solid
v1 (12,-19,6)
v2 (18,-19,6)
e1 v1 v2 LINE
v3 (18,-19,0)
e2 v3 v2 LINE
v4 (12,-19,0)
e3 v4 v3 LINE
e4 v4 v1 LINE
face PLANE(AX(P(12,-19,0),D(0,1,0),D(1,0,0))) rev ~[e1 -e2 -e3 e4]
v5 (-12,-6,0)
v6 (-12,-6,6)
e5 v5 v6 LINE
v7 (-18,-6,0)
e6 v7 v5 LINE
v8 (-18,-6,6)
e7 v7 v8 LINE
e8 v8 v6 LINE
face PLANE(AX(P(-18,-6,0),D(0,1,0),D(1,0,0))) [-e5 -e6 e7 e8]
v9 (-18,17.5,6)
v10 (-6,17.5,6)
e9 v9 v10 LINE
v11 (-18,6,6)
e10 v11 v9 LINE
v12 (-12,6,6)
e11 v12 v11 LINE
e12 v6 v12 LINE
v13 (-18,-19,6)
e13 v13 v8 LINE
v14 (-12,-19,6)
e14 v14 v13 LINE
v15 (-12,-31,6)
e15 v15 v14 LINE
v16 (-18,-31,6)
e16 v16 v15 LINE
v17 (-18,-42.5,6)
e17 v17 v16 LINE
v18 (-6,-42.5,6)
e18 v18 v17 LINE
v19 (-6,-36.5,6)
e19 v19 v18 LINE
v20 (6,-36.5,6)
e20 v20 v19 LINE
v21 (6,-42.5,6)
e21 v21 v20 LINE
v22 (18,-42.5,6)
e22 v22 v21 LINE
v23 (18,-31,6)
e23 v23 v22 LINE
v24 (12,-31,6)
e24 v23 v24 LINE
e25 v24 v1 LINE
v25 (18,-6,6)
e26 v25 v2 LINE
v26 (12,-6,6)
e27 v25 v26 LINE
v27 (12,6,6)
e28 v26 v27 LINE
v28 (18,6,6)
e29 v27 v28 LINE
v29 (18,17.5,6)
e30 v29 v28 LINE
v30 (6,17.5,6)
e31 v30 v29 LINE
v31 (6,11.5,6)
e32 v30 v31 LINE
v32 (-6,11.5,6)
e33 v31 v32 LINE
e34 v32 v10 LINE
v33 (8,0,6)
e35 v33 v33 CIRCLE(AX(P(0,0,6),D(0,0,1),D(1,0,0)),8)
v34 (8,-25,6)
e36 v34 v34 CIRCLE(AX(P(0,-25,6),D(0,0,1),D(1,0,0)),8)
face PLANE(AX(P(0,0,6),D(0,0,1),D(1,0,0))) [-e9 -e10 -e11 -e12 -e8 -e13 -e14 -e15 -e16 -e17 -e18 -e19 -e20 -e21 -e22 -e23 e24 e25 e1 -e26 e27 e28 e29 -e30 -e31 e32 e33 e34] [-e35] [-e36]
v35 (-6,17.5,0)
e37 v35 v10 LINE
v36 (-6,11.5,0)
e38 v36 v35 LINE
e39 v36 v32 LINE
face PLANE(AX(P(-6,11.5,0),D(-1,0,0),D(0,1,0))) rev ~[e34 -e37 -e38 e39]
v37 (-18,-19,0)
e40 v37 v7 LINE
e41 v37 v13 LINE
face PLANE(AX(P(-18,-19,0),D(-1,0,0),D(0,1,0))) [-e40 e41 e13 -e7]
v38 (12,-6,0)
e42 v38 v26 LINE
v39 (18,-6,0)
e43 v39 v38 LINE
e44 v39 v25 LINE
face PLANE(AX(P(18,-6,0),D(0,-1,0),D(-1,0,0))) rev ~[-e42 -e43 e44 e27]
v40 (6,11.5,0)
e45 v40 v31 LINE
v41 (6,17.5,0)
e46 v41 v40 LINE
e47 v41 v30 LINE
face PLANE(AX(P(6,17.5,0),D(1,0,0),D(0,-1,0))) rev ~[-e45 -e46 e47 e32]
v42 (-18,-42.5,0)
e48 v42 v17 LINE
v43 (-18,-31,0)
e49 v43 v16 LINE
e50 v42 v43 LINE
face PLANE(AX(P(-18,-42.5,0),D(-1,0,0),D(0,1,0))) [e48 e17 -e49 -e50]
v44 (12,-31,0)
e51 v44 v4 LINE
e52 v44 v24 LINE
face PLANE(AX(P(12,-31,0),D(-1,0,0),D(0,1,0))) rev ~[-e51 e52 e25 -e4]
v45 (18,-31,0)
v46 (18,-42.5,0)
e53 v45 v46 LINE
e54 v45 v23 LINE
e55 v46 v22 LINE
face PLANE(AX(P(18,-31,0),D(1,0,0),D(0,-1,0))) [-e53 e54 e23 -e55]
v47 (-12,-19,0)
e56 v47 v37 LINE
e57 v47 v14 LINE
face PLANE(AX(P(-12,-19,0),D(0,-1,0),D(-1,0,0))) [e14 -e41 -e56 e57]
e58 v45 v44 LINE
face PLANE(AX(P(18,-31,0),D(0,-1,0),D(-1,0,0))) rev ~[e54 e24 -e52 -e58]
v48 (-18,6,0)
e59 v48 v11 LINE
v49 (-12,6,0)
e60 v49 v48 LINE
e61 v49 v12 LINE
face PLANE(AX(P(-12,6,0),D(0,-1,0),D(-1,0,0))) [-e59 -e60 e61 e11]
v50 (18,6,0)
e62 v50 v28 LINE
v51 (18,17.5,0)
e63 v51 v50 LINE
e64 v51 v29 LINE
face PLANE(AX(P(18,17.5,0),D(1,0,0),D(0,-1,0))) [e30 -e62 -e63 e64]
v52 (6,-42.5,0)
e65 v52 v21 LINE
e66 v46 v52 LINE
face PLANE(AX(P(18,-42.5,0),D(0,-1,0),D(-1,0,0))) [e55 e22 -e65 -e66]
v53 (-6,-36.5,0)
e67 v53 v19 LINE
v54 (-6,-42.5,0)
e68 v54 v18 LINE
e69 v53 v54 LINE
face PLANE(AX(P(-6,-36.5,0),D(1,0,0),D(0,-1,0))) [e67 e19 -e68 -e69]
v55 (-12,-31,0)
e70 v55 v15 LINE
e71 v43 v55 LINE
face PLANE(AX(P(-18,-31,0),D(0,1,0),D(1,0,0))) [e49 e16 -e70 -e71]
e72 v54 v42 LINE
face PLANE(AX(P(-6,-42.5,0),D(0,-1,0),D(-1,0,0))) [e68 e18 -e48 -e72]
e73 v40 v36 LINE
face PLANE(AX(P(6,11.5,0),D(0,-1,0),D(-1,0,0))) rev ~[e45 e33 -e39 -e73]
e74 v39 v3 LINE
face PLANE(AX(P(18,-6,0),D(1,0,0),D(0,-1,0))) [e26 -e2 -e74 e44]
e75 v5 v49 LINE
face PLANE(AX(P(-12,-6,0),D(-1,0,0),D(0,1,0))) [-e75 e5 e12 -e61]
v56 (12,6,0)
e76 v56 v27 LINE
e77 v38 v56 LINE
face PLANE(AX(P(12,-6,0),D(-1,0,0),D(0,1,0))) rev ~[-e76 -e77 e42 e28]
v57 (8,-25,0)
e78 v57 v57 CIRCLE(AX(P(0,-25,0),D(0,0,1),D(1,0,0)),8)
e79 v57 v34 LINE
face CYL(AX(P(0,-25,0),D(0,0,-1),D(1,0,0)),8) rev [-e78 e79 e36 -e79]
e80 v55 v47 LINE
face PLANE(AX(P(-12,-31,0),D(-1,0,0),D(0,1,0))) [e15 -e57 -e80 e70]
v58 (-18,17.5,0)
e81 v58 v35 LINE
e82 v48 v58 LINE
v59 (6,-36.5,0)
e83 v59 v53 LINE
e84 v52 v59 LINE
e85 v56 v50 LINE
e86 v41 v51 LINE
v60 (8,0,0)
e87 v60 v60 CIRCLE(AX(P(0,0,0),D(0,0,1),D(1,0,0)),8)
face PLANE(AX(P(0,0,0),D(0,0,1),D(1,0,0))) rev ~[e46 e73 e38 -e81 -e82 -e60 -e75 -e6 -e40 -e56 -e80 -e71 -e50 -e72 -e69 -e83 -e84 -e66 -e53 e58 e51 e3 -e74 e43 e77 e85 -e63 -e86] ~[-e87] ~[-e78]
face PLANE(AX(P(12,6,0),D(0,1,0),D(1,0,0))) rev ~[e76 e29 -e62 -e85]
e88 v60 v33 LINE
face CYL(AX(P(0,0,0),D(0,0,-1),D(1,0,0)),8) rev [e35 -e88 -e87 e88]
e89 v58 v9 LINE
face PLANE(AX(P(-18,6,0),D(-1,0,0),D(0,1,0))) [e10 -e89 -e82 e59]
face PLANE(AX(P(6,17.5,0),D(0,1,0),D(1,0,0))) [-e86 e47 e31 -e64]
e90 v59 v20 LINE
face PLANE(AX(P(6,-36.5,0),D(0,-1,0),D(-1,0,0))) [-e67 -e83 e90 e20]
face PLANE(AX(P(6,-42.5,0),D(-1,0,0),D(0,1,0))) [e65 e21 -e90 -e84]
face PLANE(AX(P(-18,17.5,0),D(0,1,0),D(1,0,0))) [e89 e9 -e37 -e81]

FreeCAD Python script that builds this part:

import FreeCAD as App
import Part
import Sketcher

doc = App.newDocument("Part")
params = doc.addObject("Spreadsheet::Sheet", "Params")
for row, (alias, value) in enumerate([
    ("sketch1_diameter", "16 mm"),
    ("sketch1_width", "12 mm"),
    ("sketch1_width2", "6 mm"),
    ("sketch1_height", "11.5 mm"),
    ("pad1_length", "6 mm"),
], start=1):
    params.set(f"A{row}", alias)
    params.set(f"B{row}", "=" + value)
    params.setAlias(f"B{row}", alias)

body = doc.addObject("PartDesign::Body", "Body")

# Sketch on XY plane
sketch1 = body.newObject("Sketcher::SketchObject", "Sketch")
sketch1.AttachmentSupport = (doc.getObject("XY_Plane"), [""])
sketch1.MapMode = "FlatFace"
sketch1.addGeometry(Part.LineSegment(App.Vector(-6, 18, 0), App.Vector(-18, 18, 0)), False)
sketch1.addGeometry(Part.LineSegment(App.Vector(-18, 18, 0), App.Vector(-18, 6, 0)), False)
sketch1.addGeometry(Part.LineSegment(App.Vector(-18, 6, 0), App.Vector(-12, 6, 0)), False)
sketch1.addGeometry(Part.LineSegment(App.Vector(-12, 6, 0), App.Vector(-12, -6, 0)), False)
sketch1.addGeometry(Part.LineSegment(App.Vector(-12, -6, 0), App.Vector(-18, -6, 0)), False)
sketch1.addGeometry(Part.LineSegment(App.Vector(-18, -6, 0), App.Vector(-18, -19, 0)), False)
sketch1.addGeometry(Part.LineSegment(App.Vector(-18, -19, 0), App.Vector(-12, -19, 0)), False)
sketch1.addGeometry(Part.LineSegment(App.Vector(-12, -19, 0), App.Vector(-12, -31, 0)), False)
sketch1.addGeometry(Part.LineSegment(App.Vector(-12, -31, 0), App.Vector(-18, -31, 0)), False)
sketch1.addGeometry(Part.LineSegment(App.Vector(-18, -31, 0), App.Vector(-18, -42, 0)), False)
sketch1.addGeometry(Part.LineSegment(App.Vector(-18, -42, 0), App.Vector(-6, -42, 0)), False)
sketch1.addGeometry(Part.LineSegment(App.Vector(-6, -42, 0), App.Vector(-6, -36, 0)), False)
sketch1.addGeometry(Part.LineSegment(App.Vector(-6, -36, 0), App.Vector(6, -36, 0)), False)
sketch1.addGeometry(Part.LineSegment(App.Vector(6, -36, 0), App.Vector(6, -42, 0)), False)
sketch1.addGeometry(Part.LineSegment(App.Vector(6, -42, 0), App.Vector(18, -42, 0)), False)
sketch1.addGeometry(Part.LineSegment(App.Vector(18, -42, 0), App.Vector(18, -31, 0)), False)
sketch1.addGeometry(Part.LineSegment(App.Vector(18, -31, 0), App.Vector(12, -31, 0)), False)
sketch1.addGeometry(Part.LineSegment(App.Vector(12, -31, 0), App.Vector(12, -19, 0)), False)
sketch1.addGeometry(Part.LineSegment(App.Vector(12, -19, 0), App.Vector(18, -19, 0)), False)
sketch1.addGeometry(Part.LineSegment(App.Vector(18, -19, 0), App.Vector(18, -6, 0)), False)
sketch1.addGeometry(Part.LineSegment(App.Vector(18, -6, 0), App.Vector(12, -6, 0)), False)
sketch1.addGeometry(Part.LineSegment(App.Vector(12, -6, 0), App.Vector(12, 6, 0)), False)
sketch1.addGeometry(Part.LineSegment(App.Vector(12, 6, 0), App.Vector(18, 6, 0)), False)
sketch1.addGeometry(Part.LineSegment(App.Vector(18, 6, 0), App.Vector(18, 18, 0)), False)
sketch1.addGeometry(Part.LineSegment(App.Vector(18, 18, 0), App.Vector(6, 18, 0)), False)
sketch1.addGeometry(Part.LineSegment(App.Vector(6, 18, 0), App.Vector(6, 12, 0)), False)
sketch1.addGeometry(Part.LineSegment(App.Vector(6, 12, 0), App.Vector(-6, 12, 0)), False)
sketch1.addGeometry(Part.LineSegment(App.Vector(-6, 12, 0), App.Vector(-6, 18, 0)), False)
sketch1.addGeometry(Part.Circle(App.Vector(0, -25, 0), App.Vector(0, 0, 1), 8), False)
sketch1.addGeometry(Part.Circle(App.Vector(0, 0, 0), App.Vector(0, 0, 1), 8), False)
sketch1.addConstraint(Sketcher.Constraint("Coincident", 0, 2, 1, 1))
sketch1.addConstraint(Sketcher.Constraint("Coincident", 1, 2, 2, 1))
sketch1.addConstraint(Sketcher.Constraint("Coincident", 2, 2, 3, 1))
sketch1.addConstraint(Sketcher.Constraint("Coincident", 3, 2, 4, 1))
sketch1.addConstraint(Sketcher.Constraint("Coincident", 4, 2, 5, 1))
sketch1.addConstraint(Sketcher.Constraint("Coincident", 5, 2, 6, 1))
sketch1.addConstraint(Sketcher.Constraint("Coincident", 6, 2, 7, 1))
sketch1.addConstraint(Sketcher.Constraint("Coincident", 7, 2, 8, 1))
sketch1.addConstraint(Sketcher.Constraint("Coincident", 8, 2, 9, 1))
sketch1.addConstraint(Sketcher.Constraint("Coincident", 9, 2, 10, 1))
sketch1.addConstraint(Sketcher.Constraint("Coincident", 10, 2, 11, 1))
sketch1.addConstraint(Sketcher.Constraint("Coincident", 11, 2, 12, 1))
sketch1.addConstraint(Sketcher.Constraint("Coincident", 12, 2, 13, 1))
sketch1.addConstraint(Sketcher.Constraint("Coincident", 13, 2, 14, 1))
sketch1.addConstraint(Sketcher.Constraint("Coincident", 14, 2, 15, 1))
sketch1.addConstraint(Sketcher.Constraint("Coincident", 15, 2, 16, 1))
sketch1.addConstraint(Sketcher.Constraint("Coincident", 16, 2, 17, 1))
sketch1.addConstraint(Sketcher.Constraint("Coincident", 17, 2, 18, 1))
sketch1.addConstraint(Sketcher.Constraint("Coincident", 18, 2, 19, 1))
sketch1.addConstraint(Sketcher.Constraint("Coincident", 19, 2, 20, 1))
sketch1.addConstraint(Sketcher.Constraint("Coincident", 20, 2, 21, 1))
sketch1.addConstraint(Sketcher.Constraint("Coincident", 21, 2, 22, 1))
sketch1.addConstraint(Sketcher.Constraint("Coincident", 22, 2, 23, 1))
sketch1.addConstraint(Sketcher.Constraint("Coincident", 23, 2, 24, 1))
sketch1.addConstraint(Sketcher.Constraint("Coincident", 24, 2, 25, 1))
sketch1.addConstraint(Sketcher.Constraint("Coincident", 25, 2, 26, 1))
sketch1.addConstraint(Sketcher.Constraint("Coincident", 26, 2, 27, 1))
sketch1.addConstraint(Sketcher.Constraint("Coincident", 27, 2, 0, 1))
sketch1.addConstraint(Sketcher.Constraint("Horizontal", 0))
sketch1.addConstraint(Sketcher.Constraint("Vertical", 1))
sketch1.addConstraint(Sketcher.Constraint("Horizontal", 2))
sketch1.addConstraint(Sketcher.Constraint("Vertical", 3))
sketch1.addConstraint(Sketcher.Constraint("Horizontal", 4))
sketch1.addConstraint(Sketcher.Constraint("Vertical", 5))
sketch1.addConstraint(Sketcher.Constraint("Horizontal", 6))
sketch1.addConstraint(Sketcher.Constraint("Vertical", 7))
sketch1.addConstraint(Sketcher.Constraint("Horizontal", 8))
sketch1.addConstraint(Sketcher.Constraint("Vertical", 9))
sketch1.addConstraint(Sketcher.Constraint("Horizontal", 10))
sketch1.addConstraint(Sketcher.Constraint("Vertical", 11))
sketch1.addConstraint(Sketcher.Constraint("Horizontal", 12))
sketch1.addConstraint(Sketcher.Constraint("Vertical", 13))
sketch1.addConstraint(Sketcher.Constraint("Horizontal", 14))
sketch1.addConstraint(Sketcher.Constraint("Vertical", 15))
sketch1.addConstraint(Sketcher.Constraint("Horizontal", 16))
sketch1.addConstraint(Sketcher.Constraint("Vertical", 17))
sketch1.addConstraint(Sketcher.Constraint("Horizontal", 18))
sketch1.addConstraint(Sketcher.Constraint("Vertical", 19))
sketch1.addConstraint(Sketcher.Constraint("Horizontal", 20))
sketch1.addConstraint(Sketcher.Constraint("Vertical", 21))
sketch1.addConstraint(Sketcher.Constraint("Horizontal", 22))
sketch1.addConstraint(Sketcher.Constraint("Vertical", 23))
sketch1.addConstraint(Sketcher.Constraint("Horizontal", 24))
sketch1.addConstraint(Sketcher.Constraint("Vertical", 25))
sketch1.addConstraint(Sketcher.Constraint("Horizontal", 26))
sketch1.addConstraint(Sketcher.Constraint("Vertical", 27))
sketch1.addConstraint(Sketcher.Constraint("Coincident", 29, 3, -1, 1))
sketch1.addConstraint(Sketcher.Constraint("Equal", 28, 29))
sketch1.addConstraint(Sketcher.Constraint("Symmetric", 1, 2, 19, 2, -1, 1))
sketch1.addConstraint(Sketcher.Constraint("Symmetric", 3, 2, 21, 2, -1, 1))
sketch1.addConstraint(Sketcher.Constraint("Symmetric", 10, 2, 13, 2, -2))
sketch1.addConstraint(Sketcher.Constraint("Symmetric", 8, 2, 15, 2, -2))
sketch1.addConstraint(Sketcher.Constraint("Symmetric", 6, 2, 17, 2, -2))
sketch1.addConstraint(Sketcher.Constraint("Symmetric", 4, 2, 19, 2, -2))
sketch1.addConstraint(Sketcher.Constraint("Symmetric", 0, 2, 23, 2, -2))
sketch1.addConstraint(Sketcher.Constraint("PointOnObject", 28, 3, -2))
sketch1.addConstraint(Sketcher.Constraint("Vertical", 3, 2, 6, 2))
sketch1.addConstraint(Sketcher.Constraint("Vertical", 5, 2, 8, 2))
sketch1.addConstraint(Sketcher.Constraint("Vertical", 13, 2, 24, 2))
sketch1.addConstraint(Sketcher.Constraint("Vertical", 11, 2, 26, 2))
sketch1.addConstraint(Sketcher.Constraint("Equal", 10, 12))
sketch1.addConstraint(Sketcher.Constraint("Equal", 26, 3))
sketch1.addConstraint(Sketcher.Constraint("Equal", 3, 7))
sketch1.addConstraint(Sketcher.Constraint("Equal", 1, 9))
sketch1.addConstraint(Sketcher.Constraint("Equal", 22, 11))
sketch1.addConstraint(Sketcher.Constraint("Equal", 13, 25))
sketch1.addConstraint(Sketcher.Constraint("Diameter", 28, 16.0))
sketch1.addConstraint(Sketcher.Constraint("DistanceX", 0, 2, 0, 1, 12.0))
sketch1.addConstraint(Sketcher.Constraint("DistanceX", 2, 1, 2, 2, 6.0))
sketch1.addConstraint(Sketcher.Constraint("DistanceY", 28, 3, -1, 1, 25.0))
sketch1.addConstraint(Sketcher.Constraint("DistanceY", 28, 3, 5, 2, 6.0))
sketch1.addConstraint(Sketcher.Constraint("DistanceY", 1, 2, 1, 1, 11.5))
sketch1.setExpression("Constraints[76]", "Params.sketch1_diameter")
sketch1.setExpression("Constraints[77]", "Params.sketch1_width")
sketch1.setExpression("Constraints[78]", "Params.sketch1_width2")
sketch1.setExpression("Constraints[81]", "Params.sketch1_height")
pad1 = body.newObject("PartDesign::Pad", "Pad")
pad1.Profile = sketch1
pad1.setExpression("Length", "Params.pad1_length")

doc.recompute()
